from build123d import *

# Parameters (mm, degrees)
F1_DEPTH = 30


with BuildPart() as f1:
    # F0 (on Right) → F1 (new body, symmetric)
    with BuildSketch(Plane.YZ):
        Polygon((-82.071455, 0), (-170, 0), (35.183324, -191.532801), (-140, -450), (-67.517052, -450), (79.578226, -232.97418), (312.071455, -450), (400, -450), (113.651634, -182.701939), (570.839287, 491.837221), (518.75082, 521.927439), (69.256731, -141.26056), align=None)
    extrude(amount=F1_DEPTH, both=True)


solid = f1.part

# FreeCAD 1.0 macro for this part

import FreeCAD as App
import Part
import Sketcher
from FreeCAD import Vector

doc = App.newDocument("Part")
params = doc.addObject("Spreadsheet::Sheet", "Params")
for row, (alias, value) in enumerate([
    ("pad1_length", "60 mm"),
], start=1):
    params.set(f"A{row}", alias)
    params.set(f"B{row}", "=" + value)
    params.setAlias(f"B{row}", alias)

body = doc.addObject("PartDesign::Body", "Body")

sketch1 = doc.addObject("Sketcher::SketchObject", "Sketch")
body.addObject(sketch1)
sketch1.AttachmentSupport = (doc.YZ_Plane, [""])
sketch1.MapMode = "FlatFace"
sketch1.addGeometry(Part.LineSegment(Vector(-82, 0, 0), Vector(-170, 0, 0)), False)
sketch1.addGeometry(Part.LineSegment(Vector(-170, 0, 0), Vector(35, -192, 0)), False)
sketch1.addGeometry(Part.LineSegment(Vector(35, -192, 0), Vector(-140, -450, 0)), False)
sketch1.addGeometry(Part.LineSegment(Vector(-140, -450, 0), Vector(-68, -450, 0)), False)
sketch1.addGeometry(Part.LineSegment(Vector(-68, -450, 0), Vector(80, -233, 0)), False)
sketch1.addGeometry(Part.LineSegment(Vector(80, -233, 0), Vector(312, -450, 0)), False)
sketch1.addGeometry(Part.LineSegment(Vector(312, -450, 0), Vector(400, -450, 0)), False)
sketch1.addGeometry(Part.LineSegment(Vector(400, -450, 0), Vector(114, -183, 0)), False)
sketch1.addGeometry(Part.LineSegment(Vector(114, -183, 0), Vector(571, 492, 0)), False)
sketch1.addGeometry(Part.LineSegment(Vector(571, 492, 0), Vector(519, 522, 0)), False)
sketch1.addGeometry(Part.LineSegment(Vector(519, 522, 0), Vector(69, -141, 0)), False)
sketch1.addGeometry(Part.LineSegment(Vector(69, -141, 0), Vector(-82, 0, 0)), False)
sketch1.addConstraint(Sketcher.Constraint("Coincident", 0, 2, 1, 1))
sketch1.addConstraint(Sketcher.Constraint("Coincident", 1, 2, 2, 1))
sketch1.addConstraint(Sketcher.Constraint("Coincident", 2, 2, 3, 1))
sketch1.addConstraint(Sketcher.Constraint("Coincident", 3, 2, 4, 1))
sketch1.addConstraint(Sketcher.Constraint("Coincident", 4, 2, 5, 1))
sketch1.addConstraint(Sketcher.Constraint("Coincident", 5, 2, 6, 1))
sketch1.addConstraint(Sketcher.Constraint("Coincident", 6, 2, 7, 1))
sketch1.addConstraint(Sketcher.Constraint("Coincident", 7, 2, 8, 1))
sketch1.addConstraint(Sketcher.Constraint("Coincident", 8, 2, 9, 1))
sketch1.addConstraint(Sketcher.Constraint("Coincident", 9, 2, 10, 1))
sketch1.addConstraint(Sketcher.Constraint("Coincident", 10, 2, 11, 1))
sketch1.addConstraint(Sketcher.Constraint("Coincident", 11, 2, 0, 1))
sketch1.addConstraint(Sketcher.Constraint("Horizontal", 0))
sketch1.addConstraint(Sketcher.Constraint("Horizontal", 3))
sketch1.addConstraint(Sketcher.Constraint("Horizontal", 6))
sketch1.addConstraint(Sketcher.Constraint("PointOnObject", 0, 2, -1))
sketch1.addConstraint(Sketcher.Constraint("Parallel", 2, 4))
sketch1.addConstraint(Sketcher.Constraint("Parallel", 1, 5))
sketch1.addConstraint(Sketcher.Constraint("Parallel", 5, 7))
sketch1.addConstraint(Sketcher.Constraint("Parallel", 4, 8))
sketch1.addConstraint(Sketcher.Constraint("Parallel", 8, 10))
sketch1.addConstraint(Sketcher.Constraint("Parallel", 7, 11))
sketch1.addConstraint(Sketcher.Constraint("Horizontal", 3, 2, 5, 2))
sketch1.addConstraint(Sketcher.Constraint("Equal", 0, 6))
sketch1.addConstraint(Sketcher.Constraint("DistanceX", 0, 2, -1, 1, 170.0))
sketch1.addConstraint(Sketcher.Constraint("DistanceX", 2, 2, -1, 1, 140.0))
sketch1.addConstraint(Sketcher.Constraint("DistanceY", 2, 2, -1, 1, 450.0))
sketch1.addConstraint(Sketcher.Constraint("DistanceX", -1, 1, 6, 2, 400.0))
sketch1.addConstraint(Sketcher.Constraint("DistanceY", 1, 2, -1, 1, 191.532801))
sketch1.addConstraint(Sketcher.Constraint("DistanceY", 4, 2, 8, 2, 724.811401))
sketch1.addConstraint(Sketcher.Constraint("Distance", 5, 318.046079))
sketch1.addConstraint(Sketcher.Constraint("Distance", 8, 814.87645))
sketch1.addConstraint(Sketcher.Constraint("Distance", 10, 801.16369))
sketch1.addConstraint(Sketcher.Constraint("DistanceX", 0, 2, 0, 1, 87.928545))
sketch1.addConstraint(Sketcher.Constraint("DistanceX", 3, 1, 3, 2, 72.482948))
sketch1.addConstraint(Sketcher.Constraint("DistanceX", -1, 1, 9, 2, 518.75082))
pad1 = doc.addObject("PartDesign::Pad", "Pad")
body.addObject(pad1)
pad1.Profile = sketch1
pad1.setExpression("Length", "Params.pad1_length")
pad1.Midplane = True

doc.recompute()
